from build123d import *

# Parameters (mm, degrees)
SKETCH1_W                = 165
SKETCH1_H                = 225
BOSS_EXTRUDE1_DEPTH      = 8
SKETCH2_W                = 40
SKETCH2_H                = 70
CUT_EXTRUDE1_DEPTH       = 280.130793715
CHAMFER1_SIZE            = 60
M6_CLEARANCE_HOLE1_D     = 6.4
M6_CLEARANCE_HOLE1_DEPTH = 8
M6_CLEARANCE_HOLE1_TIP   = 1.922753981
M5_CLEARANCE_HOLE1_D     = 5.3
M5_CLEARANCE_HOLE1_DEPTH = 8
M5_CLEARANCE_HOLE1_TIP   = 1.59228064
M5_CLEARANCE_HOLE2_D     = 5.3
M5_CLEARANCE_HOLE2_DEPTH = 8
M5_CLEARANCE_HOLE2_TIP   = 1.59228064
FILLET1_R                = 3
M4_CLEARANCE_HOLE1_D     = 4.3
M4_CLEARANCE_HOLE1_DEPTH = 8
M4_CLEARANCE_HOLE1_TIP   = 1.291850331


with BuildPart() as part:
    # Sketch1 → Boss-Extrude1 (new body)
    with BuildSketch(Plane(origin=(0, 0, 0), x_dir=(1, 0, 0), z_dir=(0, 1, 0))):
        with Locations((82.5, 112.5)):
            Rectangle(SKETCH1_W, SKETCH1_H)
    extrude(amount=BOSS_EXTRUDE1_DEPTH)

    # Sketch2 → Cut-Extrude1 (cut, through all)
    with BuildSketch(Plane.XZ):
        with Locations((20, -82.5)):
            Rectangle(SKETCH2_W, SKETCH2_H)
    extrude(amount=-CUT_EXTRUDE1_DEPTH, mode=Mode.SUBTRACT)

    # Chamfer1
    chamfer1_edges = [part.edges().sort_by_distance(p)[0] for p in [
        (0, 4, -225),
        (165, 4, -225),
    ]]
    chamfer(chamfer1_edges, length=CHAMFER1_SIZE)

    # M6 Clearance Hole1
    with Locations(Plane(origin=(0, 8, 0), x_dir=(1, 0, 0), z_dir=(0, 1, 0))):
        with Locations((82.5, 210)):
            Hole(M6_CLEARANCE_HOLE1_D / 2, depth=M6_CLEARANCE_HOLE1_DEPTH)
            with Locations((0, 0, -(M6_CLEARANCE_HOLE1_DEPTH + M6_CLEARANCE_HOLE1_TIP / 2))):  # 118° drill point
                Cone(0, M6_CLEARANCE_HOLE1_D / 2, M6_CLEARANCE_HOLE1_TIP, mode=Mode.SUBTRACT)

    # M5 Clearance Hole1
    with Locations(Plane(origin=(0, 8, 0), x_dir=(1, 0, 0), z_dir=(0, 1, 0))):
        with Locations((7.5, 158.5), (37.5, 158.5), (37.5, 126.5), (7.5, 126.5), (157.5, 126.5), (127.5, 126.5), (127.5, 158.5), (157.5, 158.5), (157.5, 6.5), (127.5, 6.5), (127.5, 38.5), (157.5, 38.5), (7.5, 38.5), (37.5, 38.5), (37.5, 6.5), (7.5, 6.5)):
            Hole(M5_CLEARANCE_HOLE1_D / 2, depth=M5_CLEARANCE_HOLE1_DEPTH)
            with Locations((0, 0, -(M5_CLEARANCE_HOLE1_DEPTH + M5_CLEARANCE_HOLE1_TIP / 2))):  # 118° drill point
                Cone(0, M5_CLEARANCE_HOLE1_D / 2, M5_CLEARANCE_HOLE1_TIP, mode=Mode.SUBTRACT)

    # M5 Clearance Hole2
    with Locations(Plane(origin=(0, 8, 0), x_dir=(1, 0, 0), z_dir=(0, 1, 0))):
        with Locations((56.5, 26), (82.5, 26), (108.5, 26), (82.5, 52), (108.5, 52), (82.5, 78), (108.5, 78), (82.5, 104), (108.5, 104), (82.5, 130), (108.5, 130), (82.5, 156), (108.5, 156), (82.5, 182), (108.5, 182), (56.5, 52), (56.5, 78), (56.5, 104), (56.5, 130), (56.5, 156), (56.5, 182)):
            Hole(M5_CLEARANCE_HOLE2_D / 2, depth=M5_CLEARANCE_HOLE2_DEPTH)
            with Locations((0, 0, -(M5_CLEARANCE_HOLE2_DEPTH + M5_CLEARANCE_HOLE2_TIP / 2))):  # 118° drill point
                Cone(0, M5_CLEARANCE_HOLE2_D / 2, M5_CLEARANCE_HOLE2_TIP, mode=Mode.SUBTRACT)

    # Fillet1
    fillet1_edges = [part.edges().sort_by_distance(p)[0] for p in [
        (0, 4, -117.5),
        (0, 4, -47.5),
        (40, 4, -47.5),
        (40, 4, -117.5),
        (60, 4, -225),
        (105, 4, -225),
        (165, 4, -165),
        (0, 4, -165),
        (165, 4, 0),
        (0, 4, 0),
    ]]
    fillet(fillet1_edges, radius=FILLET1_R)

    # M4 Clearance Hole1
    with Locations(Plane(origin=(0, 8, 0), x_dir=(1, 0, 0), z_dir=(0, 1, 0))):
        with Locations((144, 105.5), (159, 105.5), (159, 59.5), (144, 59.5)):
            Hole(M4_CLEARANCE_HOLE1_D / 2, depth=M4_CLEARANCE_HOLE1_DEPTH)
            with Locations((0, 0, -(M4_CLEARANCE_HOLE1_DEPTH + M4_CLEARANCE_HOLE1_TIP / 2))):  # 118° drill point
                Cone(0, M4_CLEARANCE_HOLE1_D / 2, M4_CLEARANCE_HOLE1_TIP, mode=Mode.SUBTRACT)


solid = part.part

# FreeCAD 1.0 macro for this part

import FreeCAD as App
import Part
import Sketcher

V = App.Vector
Q = App.Units.Quantity


def edges_at(feature, points):
    """Names of the edges that pass closest to the given points."""
    edges = feature.Shape.Edges
    near = lambda p: min(range(len(edges)), key=lambda i: edges[i].distToShape(Part.Vertex(*p))[0])
    return sorted({f"Edge{near(p) + 1}" for p in points})


def add_polygon(sketch, points):
    """Adds a closed chain of lines whose ends are joined by coincident constraints."""
    first, n = sketch.GeometryCount, len(points)
    for a, b in zip(points, points[1:] + points[:1]):
        sketch.addGeometry(Part.LineSegment(App.Vector(*a, 0), App.Vector(*b, 0)), False)
    for i in range(n):
        sketch.addConstraint(Sketcher.Constraint("Coincident", first + i, 2, first + (i + 1) % n, 1))

doc = App.newDocument("Part")
body = doc.addObject("PartDesign::Body", "Body")

# Sketch on XZ plane
sketch1 = body.newObject("Sketcher::SketchObject", "Sketch")
sketch1.AttachmentSupport = (doc.getObject("XZ_Plane"), [""])
sketch1.MapMode = "FlatFace"
add_polygon(sketch1, [(0, -225), (0, 0), (165, 0), (165, -225)])  # lines 0-3
sketch1.addConstraint(Sketcher.Constraint("Vertical", 0))
sketch1.addConstraint(Sketcher.Constraint("Horizontal", 1))
sketch1.addConstraint(Sketcher.Constraint("Vertical", 2))
sketch1.addConstraint(Sketcher.Constraint("Horizontal", 3))
sketch1.addConstraint(Sketcher.Constraint("Coincident", 0, 2, -1, 1))
sketch1.addConstraint(Sketcher.Constraint("DistanceX", 1, 1, 1, 2, Q("165 mm")))
sketch1.addConstraint(Sketcher.Constraint("DistanceY", 0, 1, 0, 2, Q("225 mm")))
pad1 = body.newObject("PartDesign::Pad", "Pad")
pad1.Profile = sketch1
pad1.Length = 8
pad1.Reversed = True

# Sketch on XZ plane
sketch2 = body.newObject("Sketcher::SketchObject", "Sketch001")
sketch2.AttachmentSupport = (doc.getObject("XZ_Plane"), [""])
sketch2.MapMode = "FlatFace"
add_polygon(sketch2, [(0, -48), (0, -118), (40, -118), (40, -48)])  # lines 0-3
sketch2.addConstraint(Sketcher.Constraint("Vertical", 0))
sketch2.addConstraint(Sketcher.Constraint("Horizontal", 1))
sketch2.addConstraint(Sketcher.Constraint("Vertical", 2))
sketch2.addConstraint(Sketcher.Constraint("Horizontal", 3))
sketch2.addConstraint(Sketcher.Constraint("PointOnObject", 0, 2, -2))
sketch2.addConstraint(Sketcher.Constraint("DistanceX", 1, 1, 1, 2, Q("40 mm")))
sketch2.addConstraint(Sketcher.Constraint("DistanceY", 0, 2, 0, 1, Q("70 mm")))
sketch2.addConstraint(Sketcher.Constraint("DistanceY", 0, 2, -1, 1, Q("117.5 mm")))
pocket1 = body.newObject("PartDesign::Pocket", "Pocket")
pocket1.Profile = sketch2
pocket1.Type = "ThroughAll"
doc.recompute()

chamfer = body.newObject("PartDesign::Chamfer", "Chamfer")
chamfer.Base = (pocket1, edges_at(pocket1, [(0, 4, -225), (165, 4, -225)]))
chamfer.Size = 60

# Sketch on XZ plane
sketch3 = body.newObject("Sketcher::SketchObject", "Sketch002")
sketch3.AttachmentSupport = (doc.getObject("XZ_Plane"), [""])
sketch3.MapMode = "FlatFace"
sketch3.AttachmentOffset = App.Placement(V(0, 0, -8), App.Rotation())
sketch3.addGeometry(Part.Circle(V(82.5, -210, 0), V(0, 0, 1), 3.2), False)
sketch3.addConstraint(Sketcher.Constraint("Diameter", 0, Q("6.4 mm")))
sketch3.addConstraint(Sketcher.Constraint("DistanceY", 0, 3, -1, 1, Q("210 mm")))
sketch3.addConstraint(Sketcher.Constraint("DistanceX", -1, 1, 0, 3, Q("82.5 mm")))
doc.recompute()
hole = body.newObject("PartDesign::Hole", "Hole")
hole.Profile = sketch3
hole.ThreadType = "None"
hole.Diameter = 6.4
hole.DepthType = "Dimension"
hole.Depth = 8
hole.DrillPoint = "Angled"
hole.DrillPointAngle = 118
hole.Reversed = True

# Sketch on XZ plane
sketch4 = body.newObject("Sketcher::SketchObject", "Sketch003")
sketch4.AttachmentSupport = (doc.getObject("XZ_Plane"), [""])
sketch4.MapMode = "FlatFace"
sketch4.AttachmentOffset = App.Placement(V(0, 0, -8), App.Rotation())
sketch4.addGeometry(Part.Circle(V(7.5, -158.5, 0), V(0, 0, 1), 2.6), False)
sketch4.addGeometry(Part.Circle(V(37.5, -158.5, 0), V(0, 0, 1), 2.6), False)
sketch4.addGeometry(Part.Circle(V(37.5, -126.5, 0), V(0, 0, 1), 2.6), False)
sketch4.addGeometry(Part.Circle(V(7.5, -126.5, 0), V(0, 0, 1), 2.6), False)
sketch4.addGeometry(Part.Circle(V(157.5, -126.5, 0), V(0, 0, 1), 2.6), False)
sketch4.addGeometry(Part.Circle(V(127.5, -126.5, 0), V(0, 0, 1), 2.6), False)
sketch4.addGeometry(Part.Circle(V(127.5, -158.5, 0), V(0, 0, 1), 2.6), False)
sketch4.addGeometry(Part.Circle(V(157.5, -158.5, 0), V(0, 0, 1), 2.6), False)
sketch4.addGeometry(Part.Circle(V(157.5, -6.5, 0), V(0, 0, 1), 2.6), False)
sketch4.addGeometry(Part.Circle(V(127.5, -6.5, 0), V(0, 0, 1), 2.6), False)
sketch4.addGeometry(Part.Circle(V(127.5, -38.5, 0), V(0, 0, 1), 2.6), False)
sketch4.addGeometry(Part.Circle(V(157.5, -38.5, 0), V(0, 0, 1), 2.6), False)
sketch4.addGeometry(Part.Circle(V(7.5, -38.5, 0), V(0, 0, 1), 2.6), False)
sketch4.addGeometry(Part.Circle(V(37.5, -38.5, 0), V(0, 0, 1), 2.6), False)
sketch4.addGeometry(Part.Circle(V(37.5, -6.5, 0), V(0, 0, 1), 2.6), False)
sketch4.addGeometry(Part.Circle(V(7.5, -6.5, 0), V(0, 0, 1), 2.6), False)
sketch4.addConstraint(Sketcher.Constraint("Equal", 0, 1))
sketch4.addConstraint(Sketcher.Constraint("Equal", 1, 2))
sketch4.addConstraint(Sketcher.Constraint("Equal", 2, 3))
sketch4.addConstraint(Sketcher.Constraint("Equal", 3, 4))
sketch4.addConstraint(Sketcher.Constraint("Equal", 4, 5))
sketch4.addConstraint(Sketcher.Constraint("Equal", 5, 6))
sketch4.addConstraint(Sketcher.Constraint("Equal", 6, 7))
sketch4.addConstraint(Sketcher.Constraint("Equal", 7, 8))
sketch4.addConstraint(Sketcher.Constraint("Equal", 8, 9))
sketch4.addConstraint(Sketcher.Constraint("Equal", 9, 10))
sketch4.addConstraint(Sketcher.Constraint("Equal", 10, 11))
sketch4.addConstraint(Sketcher.Constraint("Equal", 11, 12))
sketch4.addConstraint(Sketcher.Constraint("Equal", 12, 13))
sketch4.addConstraint(Sketcher.Constraint("Equal", 13, 14))
sketch4.addConstraint(Sketcher.Constraint("Equal", 14, 15))
sketch4.addConstraint(Sketcher.Constraint("Horizontal", 0, 3, 1, 3))
sketch4.addConstraint(Sketcher.Constraint("Horizontal", 2, 3, 3, 3))
sketch4.addConstraint(Sketcher.Constraint("Horizontal", 3, 3, 4, 3))
sketch4.addConstraint(Sketcher.Constraint("Horizontal", 4, 3, 5, 3))
sketch4.addConstraint(Sketcher.Constraint("Horizontal", 1, 3, 6, 3))
sketch4.addConstraint(Sketcher.Constraint("Horizontal", 6, 3, 7, 3))
sketch4.addConstraint(Sketcher.Constraint("Horizontal", 8, 3, 9, 3))
sketch4.addConstraint(Sketcher.Constraint("Horizontal", 10, 3, 11, 3))
sketch4.addConstraint(Sketcher.Constraint("Horizontal", 11, 3, 12, 3))
sketch4.addConstraint(Sketcher.Constraint("Horizontal", 12, 3, 13, 3))
sketch4.addConstraint(Sketcher.Constraint("Horizontal", 9, 3, 14, 3))
sketch4.addConstraint(Sketcher.Constraint("Horizontal", 14, 3, 15, 3))
sketch4.addConstraint(Sketcher.Constraint("Vertical", 1, 3, 2, 3))
sketch4.addConstraint(Sketcher.Constraint("Vertical", 0, 3, 3, 3))
sketch4.addConstraint(Sketcher.Constraint("Vertical", 5, 3, 6, 3))
sketch4.addConstraint(Sketcher.Constraint("Vertical", 4, 3, 7, 3))
sketch4.addConstraint(Sketcher.Constraint("Vertical", 7, 3, 8, 3))
sketch4.addConstraint(Sketcher.Constraint("Vertical", 6, 3, 9, 3))
sketch4.addConstraint(Sketcher.Constraint("Vertical", 9, 3, 10, 3))
sketch4.addConstraint(Sketcher.Constraint("Vertical", 8, 3, 11, 3))
sketch4.addConstraint(Sketcher.Constraint("Vertical", 3, 3, 12, 3))
sketch4.addConstraint(Sketcher.Constraint("Vertical", 2, 3, 13, 3))
sketch4.addConstraint(Sketcher.Constraint("Vertical", 13, 3, 14, 3))
sketch4.addConstraint(Sketcher.Constraint("Vertical", 12, 3, 15, 3))
sketch4.addConstraint(Sketcher.Constraint("Diameter", 0, Q("5.3 mm")))
sketch4.addConstraint(Sketcher.Constraint("DistanceX", 0, 3, 1, 3, Q("30 mm")))
sketch4.addConstraint(Sketcher.Constraint("DistanceY", 1, 3, 2, 3, Q("32 mm")))
sketch4.addConstraint(Sketcher.Constraint("DistanceX", 2, 3, 4, 3, Q("120 mm")))
sketch4.addConstraint(Sketcher.Constraint("DistanceX", 5, 3, 4, 3, Q("30 mm")))
sketch4.addConstraint(Sketcher.Constraint("DistanceY", 4, 3, 8, 3, Q("120 mm")))
sketch4.addConstraint(Sketcher.Constraint("DistanceY", 10, 3, 9, 3, Q("32 mm")))
sketch4.addConstraint(Sketcher.Constraint("DistanceX", -1, 1, 0, 3, Q("7.5 mm")))
sketch4.addConstraint(Sketcher.Constraint("DistanceY", 0, 3, -1, 1, Q("158.5 mm")))
doc.recompute()
hole2 = body.newObject("PartDesign::Hole", "Hole001")
hole2.Profile = sketch4
hole2.ThreadType = "None"
hole2.Diameter = 5.3
hole2.DepthType = "Dimension"
hole2.Depth = 8
hole2.DrillPoint = "Angled"
hole2.DrillPointAngle = 118
hole2.Reversed = True

# Sketch on XZ plane
sketch5 = body.newObject("Sketcher::SketchObject", "Sketch004")
sketch5.AttachmentSupport = (doc.getObject("XZ_Plane"), [""])
sketch5.MapMode = "FlatFace"
sketch5.AttachmentOffset = App.Placement(V(0, 0, -8), App.Rotation())
sketch5.addGeometry(Part.Circle(V(56.5, -26, 0), V(0, 0, 1), 2.6), False)
sketch5.addGeometry(Part.Circle(V(82.5, -26, 0), V(0, 0, 1), 2.6), False)
sketch5.addGeometry(Part.Circle(V(108.5, -26, 0), V(0, 0, 1), 2.6), False)
sketch5.addGeometry(Part.Circle(V(82.5, -52, 0), V(0, 0, 1), 2.6), False)
sketch5.addGeometry(Part.Circle(V(108.5, -52, 0), V(0, 0, 1), 2.6), False)
sketch5.addGeometry(Part.Circle(V(82.5, -78, 0), V(0, 0, 1), 2.6), False)
sketch5.addGeometry(Part.Circle(V(108.5, -78, 0), V(0, 0, 1), 2.6), False)
sketch5.addGeometry(Part.Circle(V(82.5, -104, 0), V(0, 0, 1), 2.6), False)
sketch5.addGeometry(Part.Circle(V(108.5, -104, 0), V(0, 0, 1), 2.6), False)
sketch5.addGeometry(Part.Circle(V(82.5, -130, 0), V(0, 0, 1), 2.6), False)
sketch5.addGeometry(Part.Circle(V(108.5, -130, 0), V(0, 0, 1), 2.6), False)
sketch5.addGeometry(Part.Circle(V(82.5, -156, 0), V(0, 0, 1), 2.6), False)
sketch5.addGeometry(Part.Circle(V(108.5, -156, 0), V(0, 0, 1), 2.6), False)
sketch5.addGeometry(Part.Circle(V(82.5, -182, 0), V(0, 0, 1), 2.6), False)
sketch5.addGeometry(Part.Circle(V(108.5, -182, 0), V(0, 0, 1), 2.6), False)
sketch5.addGeometry(Part.Circle(V(56.5, -52, 0), V(0, 0, 1), 2.6), False)
sketch5.addGeometry(Part.Circle(V(56.5, -78, 0), V(0, 0, 1), 2.6), False)
sketch5.addGeometry(Part.Circle(V(56.5, -104, 0), V(0, 0, 1), 2.6), False)
sketch5.addGeometry(Part.Circle(V(56.5, -130, 0), V(0, 0, 1), 2.6), False)
sketch5.addGeometry(Part.Circle(V(56.5, -156, 0), V(0, 0, 1), 2.6), False)
sketch5.addGeometry(Part.Circle(V(56.5, -182, 0), V(0, 0, 1), 2.6), False)
sketch5.addConstraint(Sketcher.Constraint("Equal", 0, 1))
sketch5.addConstraint(Sketcher.Constraint("Equal", 1, 2))
sketch5.addConstraint(Sketcher.Constraint("Equal", 2, 3))
sketch5.addConstraint(Sketcher.Constraint("Equal", 3, 4))
sketch5.addConstraint(Sketcher.Constraint("Equal", 4, 5))
sketch5.addConstraint(Sketcher.Constraint("Equal", 5, 6))
sketch5.addConstraint(Sketcher.Constraint("Equal", 6, 7))
sketch5.addConstraint(Sketcher.Constraint("Equal", 7, 8))
sketch5.addConstraint(Sketcher.Constraint("Equal", 8, 9))
sketch5.addConstraint(Sketcher.Constraint("Equal", 9, 10))
sketch5.addConstraint(Sketcher.Constraint("Equal", 10, 11))
sketch5.addConstraint(Sketcher.Constraint("Equal", 11, 12))
sketch5.addConstraint(Sketcher.Constraint("Equal", 12, 13))
sketch5.addConstraint(Sketcher.Constraint("Equal", 13, 14))
sketch5.addConstraint(Sketcher.Constraint("Equal", 14, 15))
sketch5.addConstraint(Sketcher.Constraint("Equal", 15, 16))
sketch5.addConstraint(Sketcher.Constraint("Equal", 16, 17))
sketch5.addConstraint(Sketcher.Constraint("Equal", 17, 18))
sketch5.addConstraint(Sketcher.Constraint("Equal", 18, 19))
sketch5.addConstraint(Sketcher.Constraint("Equal", 19, 20))
sketch5.addConstraint(Sketcher.Constraint("Horizontal", 0, 3, 1, 3))
sketch5.addConstraint(Sketcher.Constraint("Horizontal", 1, 3, 2, 3))
sketch5.addConstraint(Sketcher.Constraint("Horizontal", 3, 3, 4, 3))
sketch5.addConstraint(Sketcher.Constraint("Horizontal", 5, 3, 6, 3))
sketch5.addConstraint(Sketcher.Constraint("Horizontal", 7, 3, 8, 3))
sketch5.addConstraint(Sketcher.Constraint("Horizontal", 9, 3, 10, 3))
sketch5.addConstraint(Sketcher.Constraint("Horizontal", 11, 3, 12, 3))
sketch5.addConstraint(Sketcher.Constraint("Horizontal", 13, 3, 14, 3))
sketch5.addConstraint(Sketcher.Constraint("Horizontal", 4, 3, 15, 3))
sketch5.addConstraint(Sketcher.Constraint("Horizontal", 6, 3, 16, 3))
sketch5.addConstraint(Sketcher.Constraint("Horizontal", 8, 3, 17, 3))
sketch5.addConstraint(Sketcher.Constraint("Horizontal", 10, 3, 18, 3))
sketch5.addConstraint(Sketcher.Constraint("Horizontal", 12, 3, 19, 3))
sketch5.addConstraint(Sketcher.Constraint("Horizontal", 14, 3, 20, 3))
sketch5.addConstraint(Sketcher.Constraint("Vertical", 1, 3, 3, 3))
sketch5.addConstraint(Sketcher.Constraint("Vertical", 2, 3, 4, 3))
sketch5.addConstraint(Sketcher.Constraint("Vertical", 3, 3, 5, 3))
sketch5.addConstraint(Sketcher.Constraint("Vertical", 4, 3, 6, 3))
sketch5.addConstraint(Sketcher.Constraint("Vertical", 5, 3, 7, 3))
sketch5.addConstraint(Sketcher.Constraint("Vertical", 6, 3, 8, 3))
sketch5.addConstraint(Sketcher.Constraint("Vertical", 7, 3, 9, 3))
sketch5.addConstraint(Sketcher.Constraint("Vertical", 8, 3, 10, 3))
sketch5.addConstraint(Sketcher.Constraint("Vertical", 9, 3, 11, 3))
sketch5.addConstraint(Sketcher.Constraint("Vertical", 10, 3, 12, 3))
sketch5.addConstraint(Sketcher.Constraint("Vertical", 11, 3, 13, 3))
sketch5.addConstraint(Sketcher.Constraint("Vertical", 12, 3, 14, 3))
sketch5.addConstraint(Sketcher.Constraint("Vertical", 0, 3, 15, 3))
sketch5.addConstraint(Sketcher.Constraint("Vertical", 15, 3, 16, 3))
sketch5.addConstraint(Sketcher.Constraint("Vertical", 16, 3, 17, 3))
sketch5.addConstraint(Sketcher.Constraint("Vertical", 17, 3, 18, 3))
sketch5.addConstraint(Sketcher.Constraint("Vertical", 18, 3, 19, 3))
sketch5.addConstraint(Sketcher.Constraint("Vertical", 19, 3, 20, 3))
sketch5.addConstraint(Sketcher.Constraint("Diameter", 0, Q("5.3 mm")))
sketch5.addConstraint(Sketcher.Constraint("DistanceY", 0, 3, -1, 1, Q("26 mm")))
sketch5.addConstraint(Sketcher.Constraint("DistanceY", 3, 3, -1, 1, Q("52 mm")))
sketch5.addConstraint(Sketcher.Constraint("DistanceY", 5, 3, -1, 1, Q("78 mm")))
sketch5.addConstraint(Sketcher.Constraint("DistanceY", 7, 3, -1, 1, Q("104 mm")))
sketch5.addConstraint(Sketcher.Constraint("DistanceY", 9, 3, -1, 1, Q("130 mm")))
sketch5.addConstraint(Sketcher.Constraint("DistanceY", 11, 3, -1, 1, Q("156 mm")))
sketch5.addConstraint(Sketcher.Constraint("DistanceY", 13, 3, -1, 1, Q("182 mm")))
sketch5.addConstraint(Sketcher.Constraint("DistanceX", 0, 3, 1, 3, Q("26 mm")))
sketch5.addConstraint(Sketcher.Constraint("DistanceX", 1, 3, 2, 3, Q("26 mm")))
sketch5.addConstraint(Sketcher.Constraint("DistanceX", -1, 1, 0, 3, Q("56.5 mm")))
doc.recompute()
hole3 = body.newObject("PartDesign::Hole", "Hole002")
hole3.Profile = sketch5
hole3.ThreadType = "None"
hole3.Diameter = 5.3
hole3.DepthType = "Dimension"
hole3.Depth = 8
hole3.DrillPoint = "Angled"
hole3.DrillPointAngle = 118
hole3.Reversed = True
doc.recompute()

fillet = body.newObject("PartDesign::Fillet", "Fillet")
fillet.Base = (hole3, edges_at(hole3, [
    (0, 4, -117.5),
    (0, 4, -47.5),
    (40, 4, -47.5),
    (40, 4, -117.5),
    (60, 4, -225),
    (105, 4, -225),
    (165, 4, -165),
    (0, 4, -165),
    (165, 4, 0),
    (0, 4, 0),
]))
fillet.Radius = 3

# Sketch on XZ plane
sketch6 = body.newObject("Sketcher::SketchObject", "Sketch005")
sketch6.AttachmentSupport = (doc.getObject("XZ_Plane"), [""])
sketch6.MapMode = "FlatFace"
sketch6.AttachmentOffset = App.Placement(V(0, 0, -8), App.Rotation())
sketch6.addGeometry(Part.Circle(V(144, -105.5, 0), V(0, 0, 1), 2.1), False)
sketch6.addGeometry(Part.Circle(V(159, -105.5, 0), V(0, 0, 1), 2.1), False)
sketch6.addGeometry(Part.Circle(V(159, -59.5, 0), V(0, 0, 1), 2.1), False)
sketch6.addGeometry(Part.Circle(V(144, -59.5, 0), V(0, 0, 1), 2.1), False)
sketch6.addConstraint(Sketcher.Constraint("Equal", 0, 1))
sketch6.addConstraint(Sketcher.Constraint("Equal", 1, 2))
sketch6.addConstraint(Sketcher.Constraint("Equal", 2, 3))
sketch6.addConstraint(Sketcher.Constraint("Horizontal", 0, 3, 1, 3))
sketch6.addConstraint(Sketcher.Constraint("Horizontal", 2, 3, 3, 3))
sketch6.addConstraint(Sketcher.Constraint("Vertical", 1, 3, 2, 3))
sketch6.addConstraint(Sketcher.Constraint("Vertical", 0, 3, 3, 3))
sketch6.addConstraint(Sketcher.Constraint("Diameter", 0, Q("4.3 mm")))
sketch6.addConstraint(Sketcher.Constraint("DistanceX", -1, 1, 0, 3, Q("144 mm")))
sketch6.addConstraint(Sketcher.Constraint("DistanceX", -1, 1, 1, 3, Q("159 mm")))
sketch6.addConstraint(Sketcher.Constraint("DistanceY", 1, 3, 2, 3, Q("46 mm")))
sketch6.addConstraint(Sketcher.Constraint("DistanceY", 0, 3, -1, 1, Q("105.5 mm")))
doc.recompute()
hole4 = body.newObject("PartDesign::Hole", "Hole003")
hole4.Profile = sketch6
hole4.ThreadType = "None"
hole4.Diameter = 4.3
hole4.DepthType = "Dimension"
hole4.Depth = 8
hole4.DrillPoint = "Angled"
hole4.DrillPointAngle = 118
hole4.Reversed = True

doc.recompute()
